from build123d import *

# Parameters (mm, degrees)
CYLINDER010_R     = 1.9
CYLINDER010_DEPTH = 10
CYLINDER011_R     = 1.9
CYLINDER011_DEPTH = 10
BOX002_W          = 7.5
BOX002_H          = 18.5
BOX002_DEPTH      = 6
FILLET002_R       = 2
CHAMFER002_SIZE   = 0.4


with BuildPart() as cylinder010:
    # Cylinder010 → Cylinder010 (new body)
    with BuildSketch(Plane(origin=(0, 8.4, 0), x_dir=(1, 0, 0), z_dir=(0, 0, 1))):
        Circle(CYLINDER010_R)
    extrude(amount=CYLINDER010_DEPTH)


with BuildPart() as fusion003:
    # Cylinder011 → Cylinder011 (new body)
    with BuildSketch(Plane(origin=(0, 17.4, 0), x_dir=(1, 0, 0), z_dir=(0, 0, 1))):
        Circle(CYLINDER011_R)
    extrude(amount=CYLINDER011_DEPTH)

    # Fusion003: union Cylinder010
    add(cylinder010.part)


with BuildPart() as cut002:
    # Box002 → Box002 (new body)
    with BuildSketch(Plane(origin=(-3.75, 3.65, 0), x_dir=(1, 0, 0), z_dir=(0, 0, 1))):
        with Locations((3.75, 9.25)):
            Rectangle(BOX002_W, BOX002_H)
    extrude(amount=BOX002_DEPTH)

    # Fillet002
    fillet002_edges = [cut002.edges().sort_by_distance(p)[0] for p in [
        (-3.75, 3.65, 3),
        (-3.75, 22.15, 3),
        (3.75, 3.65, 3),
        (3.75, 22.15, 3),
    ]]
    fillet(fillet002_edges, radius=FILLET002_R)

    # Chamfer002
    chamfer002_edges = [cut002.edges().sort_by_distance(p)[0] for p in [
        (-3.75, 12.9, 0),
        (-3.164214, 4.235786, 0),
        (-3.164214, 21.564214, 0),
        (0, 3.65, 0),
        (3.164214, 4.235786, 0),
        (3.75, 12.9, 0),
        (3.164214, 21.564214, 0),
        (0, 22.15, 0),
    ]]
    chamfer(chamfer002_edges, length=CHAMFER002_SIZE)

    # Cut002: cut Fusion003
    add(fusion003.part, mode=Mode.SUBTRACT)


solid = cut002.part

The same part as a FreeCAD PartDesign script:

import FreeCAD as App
import Part
import Sketcher
from FreeCAD import Vector
Q = App.Units.Quantity


def edges_at(feature, points):
    """Names of the edges that pass closest to the given points."""
    edges = feature.Shape.Edges
    near = lambda p: min(range(len(edges)), key=lambda i: edges[i].distToShape(Part.Vertex(*p))[0])
    return sorted({f"Edge{near(p) + 1}" for p in points})

doc = App.newDocument("Part")
params = doc.addObject("Spreadsheet::Sheet", "Params")
for row, (alias, value) in enumerate([
    ("sketch1_diameter", "3.8 mm"),
    ("pad1_length", "10 mm"),
    ("sketch2_diameter", "3.8 mm"),
    ("pad2_length", "10 mm"),
    ("sketch3_width", "7.5 mm"),
    ("sketch3_height", "18.5 mm"),
    ("pad3_length", "6 mm"),
    ("fillet_radius", "2 mm"),
    ("chamfer_size", "0.4 mm"),
], start=1):
    params.set(f"A{row}", alias)
    params.set(f"B{row}", "=" + value)
    params.setAlias(f"B{row}", alias)

body = doc.addObject("PartDesign::Body", "Body")

# Sketch on XY plane
sketch1 = doc.addObject("Sketcher::SketchObject", "Sketch")
body.addObject(sketch1)
sketch1.AttachmentSupport = (doc.XY_Plane, [""])
sketch1.MapMode = "FlatFace"
sketch1.addGeometry(Part.Circle(Vector(0, 8.4, 0), Vector(0, 0, 1), 1.9), False)
sketch1.addConstraint(Sketcher.Constraint("PointOnObject", 0, 3, -2))
sketch1.addConstraint(Sketcher.Constraint("Diameter", 0, Q("3.8 mm")))
sketch1.addConstraint(Sketcher.Constraint("DistanceY", -1, 1, 0, 3, Q("8.4 mm")))
sketch1.setExpression("Constraints[1]", "Params.sketch1_diameter")
pad1 = doc.addObject("PartDesign::Pad", "Pad")
body.addObject(pad1)
pad1.Profile = sketch1
pad1.setExpression("Length", "Params.pad1_length")
body2 = doc.addObject("PartDesign::Body", "Body001")
body2.AllowCompound = True

# Sketch on XY plane
sketch2 = doc.addObject("Sketcher::SketchObject", "Sketch001")
body2.addObject(sketch2)
sketch2.AttachmentSupport = (doc.getObject("XY_Plane001"), [""])
sketch2.MapMode = "FlatFace"
sketch2.addGeometry(Part.Circle(Vector(0, 17.4, 0), Vector(0, 0, 1), 1.9), False)
sketch2.addConstraint(Sketcher.Constraint("PointOnObject", 0, 3, -2))
sketch2.addConstraint(Sketcher.Constraint("Diameter", 0, Q("3.8 mm")))
sketch2.addConstraint(Sketcher.Constraint("DistanceY", -1, 1, 0, 3, Q("17.4 mm")))
sketch2.setExpression("Constraints[1]", "Params.sketch2_diameter")
pad2 = doc.addObject("PartDesign::Pad", "Pad001")
body2.addObject(pad2)
pad2.Profile = sketch2
pad2.setExpression("Length", "Params.pad2_length")
doc.recompute()

boolean = doc.addObject("PartDesign::Boolean", "Boolean")
body2.addObject(boolean)
boolean.Type = "Fuse"
boolean.addObjects([body])
body3 = doc.addObject("PartDesign::Body", "Body002")

# Sketch on XY plane
sketch3 = doc.addObject("Sketcher::SketchObject", "Sketch002")
body3.addObject(sketch3)
sketch3.AttachmentSupport = (doc.getObject("XY_Plane002"), [""])
sketch3.MapMode = "FlatFace"
sketch3.addGeometry(Part.LineSegment(Vector(-3.75, 22.15, 0), Vector(-3.75, 3.65, 0)), False)
sketch3.addGeometry(Part.LineSegment(Vector(-3.75, 3.65, 0), Vector(3.75, 3.65, 0)), False)
sketch3.addGeometry(Part.LineSegment(Vector(3.75, 3.65, 0), Vector(3.75, 22.15, 0)), False)
sketch3.addGeometry(Part.LineSegment(Vector(3.75, 22.15, 0), Vector(-3.75, 22.15, 0)), False)
sketch3.addConstraint(Sketcher.Constraint("Coincident", 0, 2, 1, 1))
sketch3.addConstraint(Sketcher.Constraint("Coincident", 1, 2, 2, 1))
sketch3.addConstraint(Sketcher.Constraint("Coincident", 2, 2, 3, 1))
sketch3.addConstraint(Sketcher.Constraint("Coincident", 3, 2, 0, 1))
sketch3.addConstraint(Sketcher.Constraint("Vertical", 0))
sketch3.addConstraint(Sketcher.Constraint("Horizontal", 1))
sketch3.addConstraint(Sketcher.Constraint("Vertical", 2))
sketch3.addConstraint(Sketcher.Constraint("Horizontal", 3))
sketch3.addConstraint(Sketcher.Constraint("DistanceX", 1, 1, 1, 2, Q("7.5 mm")))
sketch3.addConstraint(Sketcher.Constraint("DistanceY", 0, 2, 0, 1, Q("18.5 mm")))
sketch3.addConstraint(Sketcher.Constraint("DistanceX", 0, 2, -1, 1, Q("3.75 mm")))
sketch3.addConstraint(Sketcher.Constraint("DistanceY", -1, 1, 0, 2, Q("3.65 mm")))
sketch3.setExpression("Constraints[8]", "Params.sketch3_width")
sketch3.setExpression("Constraints[9]", "Params.sketch3_height")
pad3 = doc.addObject("PartDesign::Pad", "Pad002")
body3.addObject(pad3)
pad3.Profile = sketch3
pad3.setExpression("Length", "Params.pad3_length")
doc.recompute()

fillet = doc.addObject("PartDesign::Fillet", "Fillet")
body3.addObject(fillet)
fillet.Base = (pad3, edges_at(pad3, [
    (-3.75, 3.65, 3),
    (-3.75, 22.15, 3),
    (3.75, 3.65, 3),
    (3.75, 22.15, 3),
]))
fillet.setExpression("Radius", "Params.fillet_radius")
doc.recompute()

chamfer = doc.addObject("PartDesign::Chamfer", "Chamfer")
body3.addObject(chamfer)
chamfer.Base = (fillet, edges_at(fillet, [
    (-3.75, 12.9, 0),
    (-3.164, 4.236, 0),
    (-3.164, 21.564, 0),
    (0, 3.65, 0),
    (3.164, 4.236, 0),
    (3.75, 12.9, 0),
    (3.164, 21.564, 0),
    (0, 22.15, 0),
]))
chamfer.setExpression("Size", "Params.chamfer_size")
doc.recompute()

boolean2 = doc.addObject("PartDesign::Boolean", "Boolean001")
body3.addObject(boolean2)
boolean2.Type = "Cut"
boolean2.addObjects([body2])

doc.recompute()
